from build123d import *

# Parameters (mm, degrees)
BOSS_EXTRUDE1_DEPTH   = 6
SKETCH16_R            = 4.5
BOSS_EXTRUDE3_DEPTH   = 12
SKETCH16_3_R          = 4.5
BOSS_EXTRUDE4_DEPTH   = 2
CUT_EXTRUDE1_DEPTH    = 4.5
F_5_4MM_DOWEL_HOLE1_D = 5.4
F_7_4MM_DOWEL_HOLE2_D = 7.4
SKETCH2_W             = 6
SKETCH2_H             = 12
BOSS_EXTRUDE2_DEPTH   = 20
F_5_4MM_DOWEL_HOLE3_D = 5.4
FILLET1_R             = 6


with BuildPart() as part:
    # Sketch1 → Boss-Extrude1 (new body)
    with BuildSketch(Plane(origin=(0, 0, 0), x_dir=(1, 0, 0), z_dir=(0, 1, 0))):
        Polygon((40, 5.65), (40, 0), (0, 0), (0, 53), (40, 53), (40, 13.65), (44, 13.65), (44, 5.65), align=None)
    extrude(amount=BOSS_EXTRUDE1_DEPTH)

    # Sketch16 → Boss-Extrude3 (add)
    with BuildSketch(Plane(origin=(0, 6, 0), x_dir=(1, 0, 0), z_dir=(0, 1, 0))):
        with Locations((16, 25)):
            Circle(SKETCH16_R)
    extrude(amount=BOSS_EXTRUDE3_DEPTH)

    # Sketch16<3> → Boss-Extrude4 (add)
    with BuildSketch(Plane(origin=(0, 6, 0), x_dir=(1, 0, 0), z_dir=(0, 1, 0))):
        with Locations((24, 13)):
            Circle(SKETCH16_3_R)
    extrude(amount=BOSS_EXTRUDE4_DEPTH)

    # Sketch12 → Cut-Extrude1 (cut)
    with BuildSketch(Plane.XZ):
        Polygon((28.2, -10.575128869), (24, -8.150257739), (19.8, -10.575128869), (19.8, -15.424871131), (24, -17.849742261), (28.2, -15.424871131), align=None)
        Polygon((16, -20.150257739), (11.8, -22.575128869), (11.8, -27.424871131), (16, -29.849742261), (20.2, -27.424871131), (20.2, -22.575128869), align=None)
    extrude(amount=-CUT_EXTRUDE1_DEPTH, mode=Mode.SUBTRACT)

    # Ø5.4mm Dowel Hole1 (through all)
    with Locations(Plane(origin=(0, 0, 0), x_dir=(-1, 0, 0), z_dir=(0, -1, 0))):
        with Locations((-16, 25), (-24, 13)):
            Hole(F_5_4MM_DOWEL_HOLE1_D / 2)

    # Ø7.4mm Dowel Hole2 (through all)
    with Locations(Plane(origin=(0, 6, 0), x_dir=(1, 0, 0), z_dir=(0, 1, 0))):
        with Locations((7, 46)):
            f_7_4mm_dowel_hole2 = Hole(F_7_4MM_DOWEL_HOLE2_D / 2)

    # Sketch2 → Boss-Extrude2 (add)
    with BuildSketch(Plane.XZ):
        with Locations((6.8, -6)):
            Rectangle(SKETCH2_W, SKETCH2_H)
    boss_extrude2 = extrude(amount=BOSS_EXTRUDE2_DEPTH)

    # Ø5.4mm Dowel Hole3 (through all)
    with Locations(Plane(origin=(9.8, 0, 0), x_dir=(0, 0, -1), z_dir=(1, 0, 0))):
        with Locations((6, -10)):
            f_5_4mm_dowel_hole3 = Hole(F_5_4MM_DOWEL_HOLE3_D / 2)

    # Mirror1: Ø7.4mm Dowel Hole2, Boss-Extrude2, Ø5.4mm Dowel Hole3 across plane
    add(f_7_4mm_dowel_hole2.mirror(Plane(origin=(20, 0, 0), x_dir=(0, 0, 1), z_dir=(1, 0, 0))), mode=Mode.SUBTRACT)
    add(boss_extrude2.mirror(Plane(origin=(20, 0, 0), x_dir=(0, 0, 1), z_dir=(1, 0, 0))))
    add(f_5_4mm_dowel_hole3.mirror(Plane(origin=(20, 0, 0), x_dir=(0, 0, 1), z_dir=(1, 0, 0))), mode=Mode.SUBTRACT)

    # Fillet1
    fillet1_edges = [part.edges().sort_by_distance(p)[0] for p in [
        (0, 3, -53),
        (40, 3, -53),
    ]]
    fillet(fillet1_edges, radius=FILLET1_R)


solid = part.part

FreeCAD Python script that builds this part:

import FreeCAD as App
import Part
import Sketcher
Q = App.Units.Quantity


def edges_at(feature, points):
    """Names of the edges that pass closest to the given points."""
    edges = feature.Shape.Edges
    near = lambda p: min(range(len(edges)), key=lambda i: edges[i].distToShape(Part.Vertex(*p))[0])
    return sorted({f"Edge{near(p) + 1}" for p in points})

doc = App.newDocument("Part")
body = doc.addObject("PartDesign::Body", "Body")

# Sketch on XZ plane
sketch1 = body.newObject("Sketcher::SketchObject", "Sketch")
sketch1.AttachmentSupport = (doc.getObject("XZ_Plane"), [""])
sketch1.MapMode = "FlatFace"
sketch1.addGeometry([
    Part.LineSegment(App.Vector(40, 0, 0), App.Vector(40, -5.65, 0)),  # 0
    Part.LineSegment(App.Vector(40, -5.65, 0), App.Vector(44, -5.65, 0)),  # 1
    Part.LineSegment(App.Vector(44, -5.65, 0), App.Vector(44, -13.65, 0)),  # 2
    Part.LineSegment(App.Vector(44, -13.65, 0), App.Vector(40, -13.65, 0)),  # 3
    Part.LineSegment(App.Vector(40, -13.65, 0), App.Vector(40, -53, 0)),  # 4
    Part.LineSegment(App.Vector(40, -53, 0), App.Vector(0, -53, 0)),  # 5
    Part.LineSegment(App.Vector(0, -53, 0), App.Vector(0, 0, 0)),  # 6
    Part.LineSegment(App.Vector(0, 0, 0), App.Vector(40, 0, 0)),  # 7
], False)
sketch1.addConstraint([
    Sketcher.Constraint("Coincident", 0, 2, 1, 1),
    Sketcher.Constraint("Coincident", 1, 2, 2, 1),
    Sketcher.Constraint("Coincident", 2, 2, 3, 1),
    Sketcher.Constraint("Coincident", 3, 2, 4, 1),
    Sketcher.Constraint("Coincident", 4, 2, 5, 1),
    Sketcher.Constraint("Coincident", 5, 2, 6, 1),
    Sketcher.Constraint("Coincident", 6, 2, 7, 1),
    Sketcher.Constraint("Coincident", 7, 2, 0, 1),
    Sketcher.Constraint("Vertical", 0),
    Sketcher.Constraint("Horizontal", 1),
    Sketcher.Constraint("Vertical", 2),
    Sketcher.Constraint("Horizontal", 3),
    Sketcher.Constraint("Vertical", 4),
    Sketcher.Constraint("Horizontal", 5),
    Sketcher.Constraint("Vertical", 6),
    Sketcher.Constraint("Horizontal", 7),
    Sketcher.Constraint("Coincident", 6, 2, -1, 1),
    Sketcher.Constraint("Vertical", 0, 2, 3, 2),
    Sketcher.Constraint("DistanceX", 1, 1, 1, 2, 4.0),
    Sketcher.Constraint("DistanceX", 5, 2, 5, 1, 40.0),
    Sketcher.Constraint("DistanceY", 2, 2, 2, 1, 8.0),
    Sketcher.Constraint("DistanceY", 6, 1, 6, 2, 53.0),
    Sketcher.Constraint("DistanceY", 0, 2, 0, 1, 5.65),
])
pad1 = body.newObject("PartDesign::Pad", "Pad")
pad1.Profile = sketch1
pad1.Length = 6
pad1.Reversed = True

# Sketch on XZ plane
sketch2 = body.newObject("Sketcher::SketchObject", "Sketch001")
sketch2.AttachmentSupport = (doc.getObject("XZ_Plane"), [""])
sketch2.MapMode = "FlatFace"
sketch2.AttachmentOffset = App.Placement(App.Vector(0, 0, -6), App.Rotation())
sketch2.addGeometry(Part.Circle(App.Vector(16, -25, 0), App.Vector(0, 0, 1), 4.5), False)
sketch2.addConstraint([
    Sketcher.Constraint("Diameter", 0, 9.0),
    Sketcher.Constraint("DistanceX", -1, 1, 0, 3, 16.0),
    Sketcher.Constraint("DistanceY", 0, 3, -1, 1, 25.0),
])
pad2 = body.newObject("PartDesign::Pad", "Pad001")
pad2.Profile = sketch2
pad2.Length = 12
pad2.Reversed = True

# Sketch on XZ plane
sketch3 = body.newObject("Sketcher::SketchObject", "Sketch002")
sketch3.AttachmentSupport = (doc.getObject("XZ_Plane"), [""])
sketch3.MapMode = "FlatFace"
sketch3.AttachmentOffset = App.Placement(App.Vector(0, 0, -6), App.Rotation())
sketch3.addGeometry(Part.Circle(App.Vector(24, -13, 0), App.Vector(0, 0, 1), 4.5), False)
sketch3.addConstraint([
    Sketcher.Constraint("Diameter", 0, 9.0),
    Sketcher.Constraint("DistanceX", -1, 1, 0, 3, 24.0),
    Sketcher.Constraint("DistanceY", 0, 3, -1, 1, 13.0),
])
pad3 = body.newObject("PartDesign::Pad", "Pad002")
pad3.Profile = sketch3
pad3.Length = 2
pad3.Reversed = True

# Sketch on XZ plane
sketch4 = body.newObject("Sketcher::SketchObject", "Sketch003")
sketch4.AttachmentSupport = (doc.getObject("XZ_Plane"), [""])
sketch4.MapMode = "FlatFace"
sketch4.addGeometry([
    Part.LineSegment(App.Vector(28.2, -10.575129, 0), App.Vector(24, -8.150258, 0)),  # 0
    Part.LineSegment(App.Vector(24, -8.150258, 0), App.Vector(19.8, -10.575129, 0)),  # 1
    Part.LineSegment(App.Vector(19.8, -10.575129, 0), App.Vector(19.8, -15.424871, 0)),  # 2
    Part.LineSegment(App.Vector(19.8, -15.424871, 0), App.Vector(24, -17.849742, 0)),  # 3
    Part.LineSegment(App.Vector(24, -17.849742, 0), App.Vector(28.2, -15.424871, 0)),  # 4
    Part.LineSegment(App.Vector(28.2, -15.424871, 0), App.Vector(28.2, -10.575129, 0)),  # 5
    Part.LineSegment(App.Vector(16, -20.150258, 0), App.Vector(11.8, -22.575129, 0)),  # 6
    Part.LineSegment(App.Vector(11.8, -22.575129, 0), App.Vector(11.8, -27.424871, 0)),  # 7
    Part.LineSegment(App.Vector(11.8, -27.424871, 0), App.Vector(16, -29.849742, 0)),  # 8
    Part.LineSegment(App.Vector(16, -29.849742, 0), App.Vector(20.2, -27.424871, 0)),  # 9
    Part.LineSegment(App.Vector(20.2, -27.424871, 0), App.Vector(20.2, -22.575129, 0)),  # 10
    Part.LineSegment(App.Vector(20.2, -22.575129, 0), App.Vector(16, -20.150258, 0)),  # 11
], False)
sketch4.addConstraint([
    Sketcher.Constraint("Coincident", 0, 2, 1, 1),
    Sketcher.Constraint("Coincident", 1, 2, 2, 1),
    Sketcher.Constraint("Coincident", 2, 2, 3, 1),
    Sketcher.Constraint("Coincident", 3, 2, 4, 1),
    Sketcher.Constraint("Coincident", 4, 2, 5, 1),
    Sketcher.Constraint("Coincident", 5, 2, 0, 1),
    Sketcher.Constraint("Coincident", 6, 2, 7, 1),
    Sketcher.Constraint("Coincident", 7, 2, 8, 1),
    Sketcher.Constraint("Coincident", 8, 2, 9, 1),
    Sketcher.Constraint("Coincident", 9, 2, 10, 1),
    Sketcher.Constraint("Coincident", 10, 2, 11, 1),
    Sketcher.Constraint("Coincident", 11, 2, 6, 1),
    Sketcher.Constraint("Vertical", 2),
    Sketcher.Constraint("Vertical", 5),
    Sketcher.Constraint("Vertical", 7),
    Sketcher.Constraint("Vertical", 10),
    Sketcher.Constraint("Parallel", 0, 3),
    Sketcher.Constraint("Parallel", 1, 4),
    Sketcher.Constraint("Parallel", 4, 6),
    Sketcher.Constraint("Parallel", 3, 8),
    Sketcher.Constraint("Parallel", 6, 9),
    Sketcher.Constraint("Parallel", 8, 11),
    Sketcher.Constraint("Horizontal", 2, 2, 4, 2),
    Sketcher.Constraint("Horizontal", 1, 2, 5, 2),
    Sketcher.Constraint("Horizontal", 7, 2, 9, 2),
    Sketcher.Constraint("Horizontal", 6, 2, 10, 2),
    Sketcher.Constraint("Vertical", 0, 2, 3, 2),
    Sketcher.Constraint("Equal", 5, 7),
    Sketcher.Constraint("Equal", 4, 6),
    Sketcher.Constraint("Angle", 0, Q("150 deg")),
    Sketcher.Constraint("DistanceX", -1, 1, 0, 2, 24.0),
    Sketcher.Constraint("DistanceX", -1, 1, 8, 2, 16.0),
    Sketcher.Constraint("DistanceY", 6, 2, 1, 2, 12.0),
    Sketcher.Constraint("DistanceX", -1, 1, 1, 2, 19.8),
    Sketcher.Constraint("DistanceY", 2, 2, 2, 1, 4.849742),
    Sketcher.Constraint("DistanceY", 1, 2, -1, 1, 10.575129),
])
pocket1 = body.newObject("PartDesign::Pocket", "Pocket")
pocket1.Profile = sketch4
pocket1.Length = 4.5

# Sketch on XZ plane
sketch5 = body.newObject("Sketcher::SketchObject", "Sketch004")
sketch5.AttachmentSupport = (doc.getObject("XZ_Plane"), [""])
sketch5.MapMode = "FlatFace"
sketch5.addGeometry([
    Part.Circle(App.Vector(16, -25, 0), App.Vector(0, 0, 1), 2.7),
    Part.Circle(App.Vector(24, -13, 0), App.Vector(0, 0, 1), 2.7),
], False)
sketch5.addConstraint([
    Sketcher.Constraint("Equal", 0, 1),
    Sketcher.Constraint("Diameter", 0, 5.4),
    Sketcher.Constraint("DistanceX", -1, 1, 0, 3, 16.0),
    Sketcher.Constraint("DistanceY", 0, 3, -1, 1, 25.0),
    Sketcher.Constraint("DistanceX", -1, 1, 1, 3, 24.0),
    Sketcher.Constraint("DistanceY", 1, 3, -1, 1, 13.0),
])
doc.recompute()
hole = body.newObject("PartDesign::Hole", "Hole")
hole.Profile = sketch5
hole.ThreadType = "None"
hole.Diameter = 5.4
hole.DepthType = "ThroughAll"

# Sketch on XZ plane
sketch6 = body.newObject("Sketcher::SketchObject", "Sketch005")
sketch6.AttachmentSupport = (doc.getObject("XZ_Plane"), [""])
sketch6.MapMode = "FlatFace"
sketch6.AttachmentOffset = App.Placement(App.Vector(0, 0, -6), App.Rotation())
sketch6.addGeometry(Part.Circle(App.Vector(7, -46, 0), App.Vector(0, 0, 1), 3.7), False)
sketch6.addConstraint([
    Sketcher.Constraint("Diameter", 0, 7.4),
    Sketcher.Constraint("DistanceX", -1, 1, 0, 3, 7.0),
    Sketcher.Constraint("DistanceY", 0, 3, -1, 1, 46.0),
])
doc.recompute()
hole2 = body.newObject("PartDesign::Hole", "Hole001")
hole2.Profile = sketch6
hole2.ThreadType = "None"
hole2.Diameter = 7.4
hole2.DepthType = "ThroughAll"
hole2.Reversed = True

# Sketch on XZ plane
sketch7 = body.newObject("Sketcher::SketchObject", "Sketch006")
sketch7.AttachmentSupport = (doc.getObject("XZ_Plane"), [""])
sketch7.MapMode = "FlatFace"
sketch7.addGeometry([
    Part.LineSegment(App.Vector(3.8, 0, 0), App.Vector(3.8, -12, 0)),
    Part.LineSegment(App.Vector(3.8, -12, 0), App.Vector(9.8, -12, 0)),
    Part.LineSegment(App.Vector(9.8, -12, 0), App.Vector(9.8, 0, 0)),
    Part.LineSegment(App.Vector(9.8, 0, 0), App.Vector(3.8, 0, 0)),
], False)
sketch7.addConstraint([
    Sketcher.Constraint("Coincident", 0, 2, 1, 1),
    Sketcher.Constraint("Coincident", 1, 2, 2, 1),
    Sketcher.Constraint("Coincident", 2, 2, 3, 1),
    Sketcher.Constraint("Coincident", 3, 2, 0, 1),
    Sketcher.Constraint("Vertical", 0),
    Sketcher.Constraint("Horizontal", 1),
    Sketcher.Constraint("Vertical", 2),
    Sketcher.Constraint("Horizontal", 3),
    Sketcher.Constraint("PointOnObject", 2, 2, -1),
    Sketcher.Constraint("DistanceX", 1, 1, 1, 2, 6.0),
    Sketcher.Constraint("DistanceY", 0, 2, 0, 1, 12.0),
    Sketcher.Constraint("DistanceX", -1, 1, 0, 2, 3.8),
])
pad4 = body.newObject("PartDesign::Pad", "Pad003")
pad4.Profile = sketch7
pad4.Length = 20

# Sketch on YZ plane
sketch8 = body.newObject("Sketcher::SketchObject", "Sketch007")
sketch8.AttachmentSupport = (doc.getObject("YZ_Plane"), [""])
sketch8.MapMode = "FlatFace"
sketch8.AttachmentOffset = App.Placement(App.Vector(0, 0, 9.8), App.Rotation())
sketch8.addGeometry(Part.Circle(App.Vector(-10, -6, 0), App.Vector(0, 0, 1), 2.7), False)
sketch8.addConstraint([
    Sketcher.Constraint("Diameter", 0, 5.4),
    Sketcher.Constraint("DistanceX", 0, 3, -1, 1, 10.0),
    Sketcher.Constraint("DistanceY", 0, 3, -1, 1, 6.0),
])
doc.recompute()
hole3 = body.newObject("PartDesign::Hole", "Hole002")
hole3.Profile = sketch8
hole3.ThreadType = "None"
hole3.Diameter = 5.4
hole3.DepthType = "ThroughAll"
doc.recompute()

datumplane = body.newObject("PartDesign::Plane", "DatumPlane")
datumplane.AttachmentSupport = (doc.getObject("YZ_Plane"), [""])
datumplane.MapMode = "FlatFace"
datumplane.AttachmentOffset = App.Placement(App.Vector(0, 0, 20), App.Rotation())
mirrored = body.newObject("PartDesign::Mirrored", "Mirrored")
mirrored.Originals = [hole2, pad4, hole3]
mirrored.MirrorPlane = (datumplane, [""])
body.Tip = mirrored
doc.recompute()

fillet = body.newObject("PartDesign::Fillet", "Fillet")
fillet.Base = (mirrored, edges_at(mirrored, [(0, 3, -53), (40, 3, -53)]))
fillet.Radius = 6

doc.recompute()
